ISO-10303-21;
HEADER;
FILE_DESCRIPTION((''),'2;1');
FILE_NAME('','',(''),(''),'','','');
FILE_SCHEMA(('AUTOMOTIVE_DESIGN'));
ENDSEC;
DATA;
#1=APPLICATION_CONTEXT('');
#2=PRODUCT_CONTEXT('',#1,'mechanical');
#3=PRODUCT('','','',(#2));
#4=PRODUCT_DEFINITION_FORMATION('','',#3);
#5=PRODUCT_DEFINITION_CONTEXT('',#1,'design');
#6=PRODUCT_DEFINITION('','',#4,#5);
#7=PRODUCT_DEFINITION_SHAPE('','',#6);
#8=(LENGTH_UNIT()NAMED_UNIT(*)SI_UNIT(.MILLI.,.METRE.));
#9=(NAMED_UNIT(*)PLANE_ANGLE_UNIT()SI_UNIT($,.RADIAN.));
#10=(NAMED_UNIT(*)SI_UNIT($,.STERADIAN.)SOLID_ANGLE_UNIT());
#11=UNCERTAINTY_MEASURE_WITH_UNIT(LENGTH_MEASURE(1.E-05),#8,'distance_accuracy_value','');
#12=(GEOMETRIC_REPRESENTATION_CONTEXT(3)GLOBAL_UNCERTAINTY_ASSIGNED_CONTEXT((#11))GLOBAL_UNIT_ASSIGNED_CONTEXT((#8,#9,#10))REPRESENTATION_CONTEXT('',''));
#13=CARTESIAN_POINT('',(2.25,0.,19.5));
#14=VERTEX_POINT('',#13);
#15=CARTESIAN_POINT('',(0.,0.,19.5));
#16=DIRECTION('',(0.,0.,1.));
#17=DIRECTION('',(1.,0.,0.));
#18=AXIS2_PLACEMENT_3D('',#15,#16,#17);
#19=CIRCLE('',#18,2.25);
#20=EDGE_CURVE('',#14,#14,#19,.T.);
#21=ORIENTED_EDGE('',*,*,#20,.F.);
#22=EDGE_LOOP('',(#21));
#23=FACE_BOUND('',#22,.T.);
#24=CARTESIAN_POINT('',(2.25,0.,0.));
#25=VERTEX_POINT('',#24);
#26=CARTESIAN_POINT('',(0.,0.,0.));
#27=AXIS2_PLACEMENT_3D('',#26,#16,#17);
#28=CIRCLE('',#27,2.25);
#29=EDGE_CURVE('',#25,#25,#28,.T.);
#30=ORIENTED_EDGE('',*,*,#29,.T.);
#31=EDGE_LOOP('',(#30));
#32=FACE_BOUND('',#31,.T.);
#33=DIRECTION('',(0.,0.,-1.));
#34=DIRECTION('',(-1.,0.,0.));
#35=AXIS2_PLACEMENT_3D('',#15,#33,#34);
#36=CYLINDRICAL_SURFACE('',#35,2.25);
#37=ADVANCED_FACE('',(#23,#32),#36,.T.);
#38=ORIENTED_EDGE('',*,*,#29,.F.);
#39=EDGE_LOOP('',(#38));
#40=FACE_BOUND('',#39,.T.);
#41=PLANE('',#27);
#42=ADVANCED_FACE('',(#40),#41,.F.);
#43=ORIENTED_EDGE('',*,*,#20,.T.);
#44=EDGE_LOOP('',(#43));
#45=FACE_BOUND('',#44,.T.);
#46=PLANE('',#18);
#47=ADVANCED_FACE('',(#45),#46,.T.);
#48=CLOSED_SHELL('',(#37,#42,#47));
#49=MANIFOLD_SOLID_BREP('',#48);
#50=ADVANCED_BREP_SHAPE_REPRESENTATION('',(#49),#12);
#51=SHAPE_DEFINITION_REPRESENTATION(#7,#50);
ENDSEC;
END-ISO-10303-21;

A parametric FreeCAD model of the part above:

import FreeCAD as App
import Part
import Sketcher

doc = App.newDocument("Part")
params = doc.addObject("Spreadsheet::Sheet", "Params")
for row, (alias, value) in enumerate([
    ("sketch1_diameter", "4.5 mm"),
    ("pad1_length", "19.5 mm"),
], start=1):
    params.set(f"A{row}", alias)
    params.set(f"B{row}", "=" + value)
    params.setAlias(f"B{row}", alias)

body = doc.addObject("PartDesign::Body", "Body")

# Sketch on XY plane
sketch1 = body.newObject("Sketcher::SketchObject", "Sketch")
sketch1.AttachmentSupport = (doc.getObject("XY_Plane"), [""])
sketch1.MapMode = "FlatFace"
sketch1.addGeometry(Part.Circle(App.Vector(0, 0, 0), App.Vector(0, 0, 1), 2.25), False)
sketch1.addConstraint(Sketcher.Constraint("Coincident", 0, 3, -1, 1))
sketch1.addConstraint(Sketcher.Constraint("Diameter", 0, 4.5))
sketch1.setExpression("Constraints[1]", "Params.sketch1_diameter")
pad1 = body.newObject("PartDesign::Pad", "Pad")
pad1.Profile = sketch1
pad1.setExpression("Length", "Params.pad1_length")

doc.recompute()
